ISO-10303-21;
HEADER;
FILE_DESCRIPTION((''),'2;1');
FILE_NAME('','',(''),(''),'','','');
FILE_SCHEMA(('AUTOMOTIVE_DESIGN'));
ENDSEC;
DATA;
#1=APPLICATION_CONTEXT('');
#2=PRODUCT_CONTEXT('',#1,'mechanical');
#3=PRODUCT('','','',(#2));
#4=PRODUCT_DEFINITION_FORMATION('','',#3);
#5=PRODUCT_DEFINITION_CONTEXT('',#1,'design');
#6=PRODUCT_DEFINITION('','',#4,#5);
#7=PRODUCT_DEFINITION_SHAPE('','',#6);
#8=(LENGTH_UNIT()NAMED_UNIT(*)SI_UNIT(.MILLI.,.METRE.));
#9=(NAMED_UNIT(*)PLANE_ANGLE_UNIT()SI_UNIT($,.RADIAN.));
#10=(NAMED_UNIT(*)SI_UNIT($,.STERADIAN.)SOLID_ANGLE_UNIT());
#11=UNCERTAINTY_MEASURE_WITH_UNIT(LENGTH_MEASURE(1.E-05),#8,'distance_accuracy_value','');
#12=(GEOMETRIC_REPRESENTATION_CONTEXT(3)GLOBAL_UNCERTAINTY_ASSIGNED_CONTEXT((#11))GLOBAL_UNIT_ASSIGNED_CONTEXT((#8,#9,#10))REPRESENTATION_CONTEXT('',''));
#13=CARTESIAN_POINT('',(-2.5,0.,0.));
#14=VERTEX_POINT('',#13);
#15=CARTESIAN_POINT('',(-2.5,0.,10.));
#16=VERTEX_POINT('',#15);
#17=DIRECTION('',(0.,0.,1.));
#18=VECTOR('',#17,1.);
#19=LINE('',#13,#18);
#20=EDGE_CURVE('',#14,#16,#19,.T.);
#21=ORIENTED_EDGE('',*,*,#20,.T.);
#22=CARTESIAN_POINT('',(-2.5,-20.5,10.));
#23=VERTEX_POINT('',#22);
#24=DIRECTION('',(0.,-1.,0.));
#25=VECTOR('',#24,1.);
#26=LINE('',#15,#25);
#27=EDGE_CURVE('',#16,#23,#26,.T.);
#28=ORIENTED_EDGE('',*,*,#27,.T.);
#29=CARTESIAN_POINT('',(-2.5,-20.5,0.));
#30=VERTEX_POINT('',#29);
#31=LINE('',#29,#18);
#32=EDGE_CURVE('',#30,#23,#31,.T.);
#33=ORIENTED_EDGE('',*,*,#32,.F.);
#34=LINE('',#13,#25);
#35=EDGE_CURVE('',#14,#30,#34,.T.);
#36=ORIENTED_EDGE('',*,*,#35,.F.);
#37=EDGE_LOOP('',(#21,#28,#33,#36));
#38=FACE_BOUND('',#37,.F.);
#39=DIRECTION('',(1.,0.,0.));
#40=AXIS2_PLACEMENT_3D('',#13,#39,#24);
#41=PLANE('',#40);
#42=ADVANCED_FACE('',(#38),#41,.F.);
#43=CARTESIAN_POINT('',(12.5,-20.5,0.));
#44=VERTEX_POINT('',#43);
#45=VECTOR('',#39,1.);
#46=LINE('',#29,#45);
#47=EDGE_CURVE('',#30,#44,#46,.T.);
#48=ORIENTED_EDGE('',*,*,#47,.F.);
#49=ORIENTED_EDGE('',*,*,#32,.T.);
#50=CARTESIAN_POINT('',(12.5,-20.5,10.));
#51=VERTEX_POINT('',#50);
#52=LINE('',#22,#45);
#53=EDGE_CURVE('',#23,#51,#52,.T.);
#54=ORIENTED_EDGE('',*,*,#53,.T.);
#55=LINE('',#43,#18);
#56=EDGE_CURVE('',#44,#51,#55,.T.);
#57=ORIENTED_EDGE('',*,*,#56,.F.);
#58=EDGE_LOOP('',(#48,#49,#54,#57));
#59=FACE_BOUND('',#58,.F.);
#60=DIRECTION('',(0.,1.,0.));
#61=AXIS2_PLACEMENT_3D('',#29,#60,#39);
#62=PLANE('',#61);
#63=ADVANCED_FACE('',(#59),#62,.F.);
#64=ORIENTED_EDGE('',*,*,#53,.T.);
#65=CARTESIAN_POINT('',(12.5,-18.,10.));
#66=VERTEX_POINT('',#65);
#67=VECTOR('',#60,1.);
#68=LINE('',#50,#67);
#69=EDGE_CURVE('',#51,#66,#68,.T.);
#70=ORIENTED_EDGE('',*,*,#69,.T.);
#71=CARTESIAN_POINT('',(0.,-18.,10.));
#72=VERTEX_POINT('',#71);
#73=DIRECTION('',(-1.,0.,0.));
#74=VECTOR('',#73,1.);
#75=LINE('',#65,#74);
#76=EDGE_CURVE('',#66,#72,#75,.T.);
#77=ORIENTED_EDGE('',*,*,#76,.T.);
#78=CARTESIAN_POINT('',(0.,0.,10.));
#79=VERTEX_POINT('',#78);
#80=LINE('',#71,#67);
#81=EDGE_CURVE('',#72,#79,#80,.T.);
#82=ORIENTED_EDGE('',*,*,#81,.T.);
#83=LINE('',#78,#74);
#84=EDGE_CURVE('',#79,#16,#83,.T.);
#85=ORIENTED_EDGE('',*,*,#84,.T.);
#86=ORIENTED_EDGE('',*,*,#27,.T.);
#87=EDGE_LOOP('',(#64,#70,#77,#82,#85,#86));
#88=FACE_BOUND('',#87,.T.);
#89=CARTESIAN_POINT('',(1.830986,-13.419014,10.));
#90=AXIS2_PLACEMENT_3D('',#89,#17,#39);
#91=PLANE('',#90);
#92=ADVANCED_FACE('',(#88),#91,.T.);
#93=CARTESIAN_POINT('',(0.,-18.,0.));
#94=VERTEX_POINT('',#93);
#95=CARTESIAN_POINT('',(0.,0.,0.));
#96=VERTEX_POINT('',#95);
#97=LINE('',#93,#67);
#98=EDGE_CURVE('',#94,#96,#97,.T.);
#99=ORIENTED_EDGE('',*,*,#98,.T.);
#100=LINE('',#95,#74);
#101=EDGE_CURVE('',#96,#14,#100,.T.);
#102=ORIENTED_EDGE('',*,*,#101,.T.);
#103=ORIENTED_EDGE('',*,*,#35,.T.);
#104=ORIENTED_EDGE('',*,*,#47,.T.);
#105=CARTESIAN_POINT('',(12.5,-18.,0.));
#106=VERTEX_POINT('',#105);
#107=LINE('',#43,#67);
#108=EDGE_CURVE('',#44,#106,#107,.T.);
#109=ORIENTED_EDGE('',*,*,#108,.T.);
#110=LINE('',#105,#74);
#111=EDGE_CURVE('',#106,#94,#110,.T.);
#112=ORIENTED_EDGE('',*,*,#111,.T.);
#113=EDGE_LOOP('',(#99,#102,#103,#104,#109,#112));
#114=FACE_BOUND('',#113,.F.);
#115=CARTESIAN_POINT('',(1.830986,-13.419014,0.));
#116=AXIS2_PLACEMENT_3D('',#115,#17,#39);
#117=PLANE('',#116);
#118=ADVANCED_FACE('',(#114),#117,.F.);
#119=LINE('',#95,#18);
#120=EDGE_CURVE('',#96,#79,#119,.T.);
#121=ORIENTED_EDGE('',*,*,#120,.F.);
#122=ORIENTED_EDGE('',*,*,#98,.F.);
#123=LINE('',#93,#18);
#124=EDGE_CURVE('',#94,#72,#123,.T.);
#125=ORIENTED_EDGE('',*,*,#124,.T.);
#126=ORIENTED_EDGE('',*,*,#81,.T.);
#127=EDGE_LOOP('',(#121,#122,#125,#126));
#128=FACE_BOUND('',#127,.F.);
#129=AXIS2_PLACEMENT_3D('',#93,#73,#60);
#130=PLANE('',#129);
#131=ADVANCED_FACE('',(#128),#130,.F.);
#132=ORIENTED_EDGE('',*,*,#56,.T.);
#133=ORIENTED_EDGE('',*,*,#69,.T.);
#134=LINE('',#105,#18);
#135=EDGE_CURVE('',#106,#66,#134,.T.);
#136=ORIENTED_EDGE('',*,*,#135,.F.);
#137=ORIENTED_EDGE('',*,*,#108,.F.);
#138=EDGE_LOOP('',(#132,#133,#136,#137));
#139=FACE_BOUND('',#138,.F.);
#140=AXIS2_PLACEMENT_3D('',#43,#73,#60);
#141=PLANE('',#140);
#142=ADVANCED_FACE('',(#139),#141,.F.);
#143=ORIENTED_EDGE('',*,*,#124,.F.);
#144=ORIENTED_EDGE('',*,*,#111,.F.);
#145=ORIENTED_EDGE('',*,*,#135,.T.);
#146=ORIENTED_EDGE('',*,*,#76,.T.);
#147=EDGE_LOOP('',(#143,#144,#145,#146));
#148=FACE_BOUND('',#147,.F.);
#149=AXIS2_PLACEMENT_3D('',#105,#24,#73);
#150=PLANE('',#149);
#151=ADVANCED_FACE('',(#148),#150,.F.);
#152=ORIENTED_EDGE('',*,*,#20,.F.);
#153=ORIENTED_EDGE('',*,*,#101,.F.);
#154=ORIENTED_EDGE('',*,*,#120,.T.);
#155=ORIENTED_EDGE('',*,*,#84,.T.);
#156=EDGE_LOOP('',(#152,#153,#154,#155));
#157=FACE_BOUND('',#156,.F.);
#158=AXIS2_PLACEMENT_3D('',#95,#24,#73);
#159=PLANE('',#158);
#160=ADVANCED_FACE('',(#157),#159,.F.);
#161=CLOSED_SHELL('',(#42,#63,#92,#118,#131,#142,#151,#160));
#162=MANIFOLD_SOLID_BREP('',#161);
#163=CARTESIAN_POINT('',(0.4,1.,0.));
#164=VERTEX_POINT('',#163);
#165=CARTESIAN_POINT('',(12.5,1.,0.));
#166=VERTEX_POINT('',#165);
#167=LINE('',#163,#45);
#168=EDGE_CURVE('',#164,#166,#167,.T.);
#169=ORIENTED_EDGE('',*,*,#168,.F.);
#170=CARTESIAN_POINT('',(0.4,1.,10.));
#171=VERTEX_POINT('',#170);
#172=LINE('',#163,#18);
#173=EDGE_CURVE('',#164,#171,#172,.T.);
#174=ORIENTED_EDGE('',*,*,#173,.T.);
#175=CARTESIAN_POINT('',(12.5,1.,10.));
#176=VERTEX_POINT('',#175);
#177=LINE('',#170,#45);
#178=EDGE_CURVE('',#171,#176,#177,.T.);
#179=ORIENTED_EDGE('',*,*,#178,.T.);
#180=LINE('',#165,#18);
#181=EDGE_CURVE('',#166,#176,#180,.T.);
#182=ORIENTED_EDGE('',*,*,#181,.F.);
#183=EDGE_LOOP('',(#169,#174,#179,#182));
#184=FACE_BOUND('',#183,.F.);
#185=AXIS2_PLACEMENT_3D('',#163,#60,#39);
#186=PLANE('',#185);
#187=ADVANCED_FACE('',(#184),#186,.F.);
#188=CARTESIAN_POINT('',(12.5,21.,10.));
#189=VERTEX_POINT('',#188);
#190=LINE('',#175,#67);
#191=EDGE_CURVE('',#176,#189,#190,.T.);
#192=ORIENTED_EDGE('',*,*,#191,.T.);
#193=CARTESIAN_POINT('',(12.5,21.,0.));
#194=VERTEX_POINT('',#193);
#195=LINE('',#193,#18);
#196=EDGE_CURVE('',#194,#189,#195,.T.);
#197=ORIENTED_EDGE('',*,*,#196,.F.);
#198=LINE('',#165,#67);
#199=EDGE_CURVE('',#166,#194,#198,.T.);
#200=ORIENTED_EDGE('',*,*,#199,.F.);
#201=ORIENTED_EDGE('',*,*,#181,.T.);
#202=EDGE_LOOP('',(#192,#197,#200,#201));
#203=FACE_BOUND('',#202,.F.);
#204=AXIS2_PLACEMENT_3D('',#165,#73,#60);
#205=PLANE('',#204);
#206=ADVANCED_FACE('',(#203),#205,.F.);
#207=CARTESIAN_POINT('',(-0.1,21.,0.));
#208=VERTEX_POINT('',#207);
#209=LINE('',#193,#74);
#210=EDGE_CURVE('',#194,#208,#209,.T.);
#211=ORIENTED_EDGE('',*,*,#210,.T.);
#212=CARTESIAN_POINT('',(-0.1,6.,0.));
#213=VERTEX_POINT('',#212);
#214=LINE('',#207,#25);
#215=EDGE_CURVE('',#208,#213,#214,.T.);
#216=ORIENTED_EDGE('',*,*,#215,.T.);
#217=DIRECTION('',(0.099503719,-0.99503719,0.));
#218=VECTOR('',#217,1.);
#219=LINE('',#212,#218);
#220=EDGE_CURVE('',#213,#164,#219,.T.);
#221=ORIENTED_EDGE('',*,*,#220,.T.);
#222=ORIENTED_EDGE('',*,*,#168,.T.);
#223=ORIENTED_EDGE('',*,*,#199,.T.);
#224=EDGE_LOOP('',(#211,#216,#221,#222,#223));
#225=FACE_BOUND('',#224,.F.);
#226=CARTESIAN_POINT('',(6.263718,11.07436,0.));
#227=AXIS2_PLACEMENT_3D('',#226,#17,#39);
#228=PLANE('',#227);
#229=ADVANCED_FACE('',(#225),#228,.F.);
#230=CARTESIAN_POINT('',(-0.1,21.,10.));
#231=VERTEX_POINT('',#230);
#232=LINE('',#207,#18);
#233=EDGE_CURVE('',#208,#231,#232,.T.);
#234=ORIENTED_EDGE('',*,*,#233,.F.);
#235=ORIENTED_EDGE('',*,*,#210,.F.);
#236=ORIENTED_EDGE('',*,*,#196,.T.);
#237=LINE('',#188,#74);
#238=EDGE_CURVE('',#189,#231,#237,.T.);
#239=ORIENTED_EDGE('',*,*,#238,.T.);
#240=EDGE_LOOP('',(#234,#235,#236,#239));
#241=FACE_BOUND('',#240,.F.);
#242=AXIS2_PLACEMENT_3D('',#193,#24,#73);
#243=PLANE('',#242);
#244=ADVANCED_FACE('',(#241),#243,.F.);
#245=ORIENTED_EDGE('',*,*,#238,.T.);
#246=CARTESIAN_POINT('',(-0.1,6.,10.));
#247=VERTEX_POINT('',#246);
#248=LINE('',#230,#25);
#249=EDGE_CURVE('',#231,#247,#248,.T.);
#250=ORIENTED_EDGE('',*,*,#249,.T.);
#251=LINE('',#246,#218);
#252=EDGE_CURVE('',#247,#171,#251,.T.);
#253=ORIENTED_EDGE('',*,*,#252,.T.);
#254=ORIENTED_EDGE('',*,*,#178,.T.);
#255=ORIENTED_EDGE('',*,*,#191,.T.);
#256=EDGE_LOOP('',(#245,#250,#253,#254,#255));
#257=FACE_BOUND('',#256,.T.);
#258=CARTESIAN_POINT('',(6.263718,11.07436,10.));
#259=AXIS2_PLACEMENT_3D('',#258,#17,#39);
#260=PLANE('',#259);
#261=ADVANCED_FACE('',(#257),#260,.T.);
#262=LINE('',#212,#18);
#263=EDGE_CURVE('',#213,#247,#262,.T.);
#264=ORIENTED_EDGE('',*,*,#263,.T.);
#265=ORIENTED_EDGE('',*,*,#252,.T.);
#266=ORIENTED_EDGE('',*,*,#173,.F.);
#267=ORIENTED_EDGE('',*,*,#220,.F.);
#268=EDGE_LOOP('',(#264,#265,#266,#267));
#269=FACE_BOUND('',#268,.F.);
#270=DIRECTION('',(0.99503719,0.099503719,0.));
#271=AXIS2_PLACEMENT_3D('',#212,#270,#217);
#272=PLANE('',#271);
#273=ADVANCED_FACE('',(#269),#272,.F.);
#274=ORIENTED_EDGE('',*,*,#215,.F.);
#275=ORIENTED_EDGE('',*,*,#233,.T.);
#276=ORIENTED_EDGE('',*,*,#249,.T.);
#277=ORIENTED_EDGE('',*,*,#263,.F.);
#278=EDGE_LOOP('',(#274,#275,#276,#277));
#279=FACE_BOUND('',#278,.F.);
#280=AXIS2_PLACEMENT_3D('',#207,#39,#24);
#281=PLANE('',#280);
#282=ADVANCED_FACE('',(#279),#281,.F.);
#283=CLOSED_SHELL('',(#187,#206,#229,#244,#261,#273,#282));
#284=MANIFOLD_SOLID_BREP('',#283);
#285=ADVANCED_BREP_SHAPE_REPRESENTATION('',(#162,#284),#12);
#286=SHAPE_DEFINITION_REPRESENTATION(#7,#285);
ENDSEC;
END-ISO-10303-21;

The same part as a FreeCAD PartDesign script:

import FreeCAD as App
import Part
import Sketcher
from FreeCAD import Vector
Q = App.Units.Quantity

doc = App.newDocument("Part")
body = doc.addObject("PartDesign::Body", "Body")
body.AllowCompound = True

# Sketch on XY plane
sketch1 = body.newObject("Sketcher::SketchObject", "Sketch")
sketch1.AttachmentSupport = (doc.getObject("XY_Plane"), [""])
sketch1.MapMode = "FlatFace"
sketch1.addGeometry([
    Part.LineSegment(Vector(0.4, 1, 0), Vector(12.5, 1, 0)),  # 0
    Part.LineSegment(Vector(12.5, 1, 0), Vector(12.5, 21, 0)),  # 1
    Part.LineSegment(Vector(12.5, 21, 0), Vector(-0.1, 21, 0)),  # 2
    Part.LineSegment(Vector(-0.1, 21, 0), Vector(-0.1, 6, 0)),  # 3
    Part.LineSegment(Vector(-0.1, 6, 0), Vector(0.4, 1, 0)),  # 4
    Part.LineSegment(Vector(0, -18, 0), Vector(0, 0, 0)),  # 5
    Part.LineSegment(Vector(0, 0, 0), Vector(-2.5, 0, 0)),  # 6
    Part.LineSegment(Vector(-2.5, 0, 0), Vector(-2.5, -20.5, 0)),  # 7
    Part.LineSegment(Vector(-2.5, -20.5, 0), Vector(12.5, -20.5, 0)),  # 8
    Part.LineSegment(Vector(12.5, -20.5, 0), Vector(12.5, -18, 0)),  # 9
    Part.LineSegment(Vector(12.5, -18, 0), Vector(0, -18, 0)),  # 10
], False)
sketch1.addConstraint([
    Sketcher.Constraint("Coincident", 0, 2, 1, 1),
    Sketcher.Constraint("Coincident", 1, 2, 2, 1),
    Sketcher.Constraint("Coincident", 2, 2, 3, 1),
    Sketcher.Constraint("Coincident", 3, 2, 4, 1),
    Sketcher.Constraint("Coincident", 4, 2, 0, 1),
    Sketcher.Constraint("Coincident", 5, 2, 6, 1),
    Sketcher.Constraint("Coincident", 6, 2, 7, 1),
    Sketcher.Constraint("Coincident", 7, 2, 8, 1),
    Sketcher.Constraint("Coincident", 8, 2, 9, 1),
    Sketcher.Constraint("Coincident", 9, 2, 10, 1),
    Sketcher.Constraint("Coincident", 10, 2, 5, 1),
    Sketcher.Constraint("Horizontal", 0),
    Sketcher.Constraint("Vertical", 1),
    Sketcher.Constraint("Horizontal", 2),
    Sketcher.Constraint("Vertical", 3),
    Sketcher.Constraint("Vertical", 5),
    Sketcher.Constraint("Horizontal", 6),
    Sketcher.Constraint("Vertical", 7),
    Sketcher.Constraint("Horizontal", 8),
    Sketcher.Constraint("Vertical", 9),
    Sketcher.Constraint("Horizontal", 10),
    Sketcher.Constraint("Coincident", 5, 2, -1, 1),
    Sketcher.Constraint("Vertical", 1, 2, 8, 2),
    Sketcher.Constraint("Equal", 8, 3),
    Sketcher.Constraint("Equal", 6, 9),
    Sketcher.Constraint("DistanceX", 8, 1, 8, 2, Q("15 mm")),
    Sketcher.Constraint("DistanceY", 1, 1, 1, 2, Q("20 mm")),
    Sketcher.Constraint("DistanceY", 5, 1, 5, 2, Q("18 mm")),
    Sketcher.Constraint("DistanceX", 0, 1, 0, 2, Q("12.1 mm")),
    Sketcher.Constraint("DistanceX", 2, 2, 2, 1, Q("12.6 mm")),
    Sketcher.Constraint("DistanceX", 6, 2, 6, 1, Q("2.5 mm")),
    Sketcher.Constraint("DistanceY", -1, 1, 0, 2, Q("1 mm")),
])
pad1 = body.newObject("PartDesign::Pad", "Pad")
pad1.Profile = sketch1
pad1.Length = 10

doc.recompute()
